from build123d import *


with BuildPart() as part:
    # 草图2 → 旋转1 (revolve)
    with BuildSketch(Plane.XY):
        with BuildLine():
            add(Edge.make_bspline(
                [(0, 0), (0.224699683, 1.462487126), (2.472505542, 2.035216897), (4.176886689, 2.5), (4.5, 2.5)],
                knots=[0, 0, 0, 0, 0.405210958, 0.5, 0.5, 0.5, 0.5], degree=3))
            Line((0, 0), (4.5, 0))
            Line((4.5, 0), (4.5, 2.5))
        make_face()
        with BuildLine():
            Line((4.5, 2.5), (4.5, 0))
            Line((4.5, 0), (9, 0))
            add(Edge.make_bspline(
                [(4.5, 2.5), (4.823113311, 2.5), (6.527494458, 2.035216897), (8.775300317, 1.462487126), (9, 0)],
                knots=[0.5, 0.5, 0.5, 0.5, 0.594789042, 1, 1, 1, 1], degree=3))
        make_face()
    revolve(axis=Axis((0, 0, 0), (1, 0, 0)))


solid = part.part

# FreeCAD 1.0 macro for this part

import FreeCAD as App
import Part
import Sketcher

V = App.Vector

doc = App.newDocument("Part")
body = doc.addObject("PartDesign::Body", "Body")

sketch1 = doc.addObject("Sketcher::SketchObject", "Sketch")
body.addObject(sketch1)
sketch1.AttachmentSupport = (doc.XY_Plane, [""])
sketch1.MapMode = "FlatFace"
sketch1.addGeometry([
    Part.BSplineCurve([V(9, 0, 0), V(8.7753, 1.462487, 0), V(6.527494, 2.035217, 0), V(4.5, 2.588113, 0), V(2.472506, 2.035217, 0), V(0.2247, 1.462487, 0), V(0, 0, 0)], [4, 1, 1, 1, 4], [0.5, 0.905210958, 1, 1.094789042, 1.5], False, 3, [1, 1, 1, 1, 1, 1, 1], False),
    Part.LineSegment(V(0, 0, 0), V(9, 0, 0)),
], False)
sketch1.addConstraint([
    Sketcher.Constraint("Block", 0),
    Sketcher.Constraint("Coincident", 0, 1, 1, 2),
    Sketcher.Constraint("Coincident", 1, 1, 0, 2),
])
revolution = doc.addObject("PartDesign::Revolution", "Revolution")
body.addObject(revolution)
revolution.Profile = sketch1
revolution.ReferenceAxis = (sketch1, ["H_Axis"])
revolution.Angle = 360

doc.recompute()
